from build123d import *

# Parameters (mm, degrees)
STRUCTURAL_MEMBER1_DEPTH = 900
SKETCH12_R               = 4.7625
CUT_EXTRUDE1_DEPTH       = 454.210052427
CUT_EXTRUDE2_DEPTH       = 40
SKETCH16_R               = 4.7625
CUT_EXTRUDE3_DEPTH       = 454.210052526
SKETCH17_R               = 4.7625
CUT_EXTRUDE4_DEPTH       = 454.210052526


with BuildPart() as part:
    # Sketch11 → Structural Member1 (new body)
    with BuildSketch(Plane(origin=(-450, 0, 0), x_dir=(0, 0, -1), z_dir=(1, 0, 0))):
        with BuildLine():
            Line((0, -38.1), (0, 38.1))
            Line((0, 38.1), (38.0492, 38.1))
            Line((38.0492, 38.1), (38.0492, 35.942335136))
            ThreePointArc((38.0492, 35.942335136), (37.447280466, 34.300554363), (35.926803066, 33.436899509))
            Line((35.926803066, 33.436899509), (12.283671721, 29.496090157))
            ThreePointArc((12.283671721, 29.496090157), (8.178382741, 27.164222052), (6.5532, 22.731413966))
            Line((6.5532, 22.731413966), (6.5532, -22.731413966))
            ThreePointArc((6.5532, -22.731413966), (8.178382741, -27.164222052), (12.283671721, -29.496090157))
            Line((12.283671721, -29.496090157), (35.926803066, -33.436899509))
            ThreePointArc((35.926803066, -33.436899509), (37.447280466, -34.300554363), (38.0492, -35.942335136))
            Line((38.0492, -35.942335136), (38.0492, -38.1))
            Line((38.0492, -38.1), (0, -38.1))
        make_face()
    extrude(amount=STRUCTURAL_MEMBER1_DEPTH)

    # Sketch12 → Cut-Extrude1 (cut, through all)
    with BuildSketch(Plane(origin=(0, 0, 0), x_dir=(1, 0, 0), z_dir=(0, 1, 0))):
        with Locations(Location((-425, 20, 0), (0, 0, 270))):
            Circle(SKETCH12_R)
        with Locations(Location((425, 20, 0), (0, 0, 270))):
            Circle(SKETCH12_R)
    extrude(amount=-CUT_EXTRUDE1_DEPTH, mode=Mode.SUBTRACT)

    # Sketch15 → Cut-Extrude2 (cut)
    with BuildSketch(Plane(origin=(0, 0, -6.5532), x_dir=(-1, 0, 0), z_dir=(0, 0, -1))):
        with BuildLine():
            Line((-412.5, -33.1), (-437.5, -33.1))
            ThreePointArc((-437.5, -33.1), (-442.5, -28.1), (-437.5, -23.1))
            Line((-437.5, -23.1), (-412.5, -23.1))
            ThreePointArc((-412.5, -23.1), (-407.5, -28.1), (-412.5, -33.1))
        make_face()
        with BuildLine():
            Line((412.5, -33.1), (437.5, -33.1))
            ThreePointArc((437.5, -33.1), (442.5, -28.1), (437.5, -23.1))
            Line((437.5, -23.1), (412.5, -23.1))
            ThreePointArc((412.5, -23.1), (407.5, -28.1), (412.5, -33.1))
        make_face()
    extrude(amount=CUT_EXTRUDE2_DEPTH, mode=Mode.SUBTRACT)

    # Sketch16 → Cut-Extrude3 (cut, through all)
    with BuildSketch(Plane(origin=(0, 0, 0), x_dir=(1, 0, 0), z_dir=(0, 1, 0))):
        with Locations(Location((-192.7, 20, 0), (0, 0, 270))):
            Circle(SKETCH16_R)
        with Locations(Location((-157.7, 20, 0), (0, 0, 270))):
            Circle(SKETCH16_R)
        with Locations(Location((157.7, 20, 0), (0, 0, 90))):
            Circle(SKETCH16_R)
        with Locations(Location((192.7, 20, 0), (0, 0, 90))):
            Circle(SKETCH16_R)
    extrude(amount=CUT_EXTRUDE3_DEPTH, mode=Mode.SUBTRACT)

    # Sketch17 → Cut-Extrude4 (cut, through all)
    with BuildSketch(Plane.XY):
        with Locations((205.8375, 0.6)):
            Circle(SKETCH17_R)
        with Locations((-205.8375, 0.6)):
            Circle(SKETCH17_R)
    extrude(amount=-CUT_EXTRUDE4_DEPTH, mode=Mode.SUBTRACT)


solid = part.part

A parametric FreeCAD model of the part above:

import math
import FreeCAD as App
import Part
import Sketcher
from FreeCAD import Vector
Q = App.Units.Quantity

doc = App.newDocument("Part")
params = doc.addObject("Spreadsheet::Sheet", "Params")
for row, (alias, value) in enumerate([
    ("sketch1_radius", "0.1 in"),
    ("sketch1_radius2", "0.1 in"),
    ("sketch1_width", "3 in"),
    ("sketch1_radius3", "0.27 in"),
    ("sketch1_radius4", "0.27 in"),
    ("pad1_length", "900 mm"),
    ("sketch2_diameter", "0.375 in"),
    ("pocket2_length", "40 mm"),
    ("sketch4_diameter", "0.375 in"),
    ("sketch5_diameter", "0.375 in"),
], start=1):
    params.set(f"A{row}", alias)
    params.set(f"B{row}", "=" + value)
    params.setAlias(f"B{row}", alias)

body = doc.addObject("PartDesign::Body", "Body")

sketch1 = body.newObject("Sketcher::SketchObject", "Sketch")
sketch1.AttachmentSupport = (doc.getObject("YZ_Plane"), [""])
sketch1.MapMode = "FlatFace"
sketch1.AttachmentOffset = App.Placement(Vector(0, 0, -450), App.Rotation())
sketch1.addGeometry(Part.LineSegment(Vector(38.1, 0, 0), Vector(-38.1, 0, 0)), False)
sketch1.addGeometry(Part.LineSegment(Vector(-38.1, 0, 0), Vector(-38.1, -38.0492, 0)), False)
sketch1.addGeometry(Part.LineSegment(Vector(-38.1, -38.0492, 0), Vector(-35.942335, -38.0492, 0)), False)
sketch1.addGeometry(Part.ArcOfCircle(Part.Circle(Vector(-35.942335, -35.5092, 0), Vector(0, 0, 1), 2.54), math.radians(-90), math.radians(-9.463)), False)
sketch1.addGeometry(Part.LineSegment(Vector(-33.4369, -35.926803, 0), Vector(-29.49609, -12.283672, 0)), False)
sketch1.addGeometry(Part.ArcOfCircle(Part.Circle(Vector(-22.731414, -13.4112, 0), Vector(0, 0, 1), 6.858), math.radians(90), math.radians(170.537)), False)
sketch1.addGeometry(Part.LineSegment(Vector(-22.731414, -6.5532, 0), Vector(22.731414, -6.5532, 0)), False)
sketch1.addGeometry(Part.ArcOfCircle(Part.Circle(Vector(22.731414, -13.4112, 0), Vector(0, 0, 1), 6.858), math.radians(9.463), math.radians(90)), False)
sketch1.addGeometry(Part.LineSegment(Vector(29.49609, -12.283672, 0), Vector(33.4369, -35.926803, 0)), False)
sketch1.addGeometry(Part.ArcOfCircle(Part.Circle(Vector(35.942335, -35.5092, 0), Vector(0, 0, 1), 2.54), math.radians(-170.537), math.radians(-90)), False)
sketch1.addGeometry(Part.LineSegment(Vector(35.942335, -38.0492, 0), Vector(38.1, -38.0492, 0)), False)
sketch1.addGeometry(Part.LineSegment(Vector(38.1, -38.0492, 0), Vector(38.1, 0, 0)), False)
sketch1.addConstraint(Sketcher.Constraint("Coincident", 0, 2, 1, 1))
sketch1.addConstraint(Sketcher.Constraint("Coincident", 1, 2, 2, 1))
sketch1.addConstraint(Sketcher.Constraint("Coincident", 2, 2, 3, 1))
sketch1.addConstraint(Sketcher.Constraint("Coincident", 3, 2, 4, 1))
sketch1.addConstraint(Sketcher.Constraint("Coincident", 4, 2, 5, 2))
sketch1.addConstraint(Sketcher.Constraint("Coincident", 5, 1, 6, 1))
sketch1.addConstraint(Sketcher.Constraint("Coincident", 6, 2, 7, 2))
sketch1.addConstraint(Sketcher.Constraint("Coincident", 7, 1, 8, 1))
sketch1.addConstraint(Sketcher.Constraint("Coincident", 8, 2, 9, 1))
sketch1.addConstraint(Sketcher.Constraint("Coincident", 9, 2, 10, 1))
sketch1.addConstraint(Sketcher.Constraint("Coincident", 10, 2, 11, 1))
sketch1.addConstraint(Sketcher.Constraint("Coincident", 11, 2, 0, 1))
sketch1.addConstraint(Sketcher.Constraint("Horizontal", 0))
sketch1.addConstraint(Sketcher.Constraint("Vertical", 1))
sketch1.addConstraint(Sketcher.Constraint("Horizontal", 2))
sketch1.addConstraint(Sketcher.Constraint("Horizontal", 6))
sketch1.addConstraint(Sketcher.Constraint("Horizontal", 10))
sketch1.addConstraint(Sketcher.Constraint("Vertical", 11))
sketch1.addConstraint(Sketcher.Constraint("PointOnObject", 0, 2, -1))
sketch1.addConstraint(Sketcher.Constraint("Radius", 3, Q("0.1 in")))
sketch1.addConstraint(Sketcher.Constraint("Radius", 9, Q("0.1 in")))
sketch1.addConstraint(Sketcher.Constraint("DistanceX", 0, 2, 0, 1, Q("3 in")))
sketch1.addConstraint(Sketcher.Constraint("Radius", 5, Q("0.27 in")))
sketch1.addConstraint(Sketcher.Constraint("Radius", 7, Q("0.27 in")))
sketch1.addConstraint(Sketcher.Constraint("DistanceX", 0, 2, -1, 1, Q("1.5 in")))
sketch1.addConstraint(Sketcher.Constraint("DistanceY", 1, 2, 9, 3, Q("0.1 in")))
sketch1.addConstraint(Sketcher.Constraint("DistanceY", 1, 2, 1, 1, Q("1.498 in")))
sketch1.addConstraint(Sketcher.Constraint("DistanceY", 3, 3, 5, 3, Q("0.87 in")))
sketch1.addConstraint(Sketcher.Constraint("DistanceX", 3, 2, -1, 1, Q("33.4369 mm")))
sketch1.addConstraint(Sketcher.Constraint("DistanceX", -1, 1, 8, 2, Q("33.4369 mm")))
sketch1.addConstraint(Sketcher.Constraint("DistanceX", 2, 1, 2, 2, Q("2.157665 mm")))
sketch1.addConstraint(Sketcher.Constraint("DistanceX", 6, 1, 6, 2, Q("45.462828 mm")))
sketch1.addConstraint(Sketcher.Constraint("DistanceX", 10, 1, 10, 2, Q("2.157665 mm")))
sketch1.addConstraint(Sketcher.Constraint("DistanceX", 4, 2, -1, 1, Q("29.49609 mm")))
sketch1.addConstraint(Sketcher.Constraint("DistanceY", 4, 2, -1, 1, Q("12.283672 mm")))
sketch1.addConstraint(Sketcher.Constraint("DistanceX", -1, 1, 7, 1, Q("29.49609 mm")))
sketch1.addConstraint(Sketcher.Constraint("DistanceY", 7, 1, -1, 1, Q("12.283672 mm")))
sketch1.addConstraint(Sketcher.Constraint("DistanceX", 3, 3, 5, 3, Q("13.210921 mm")))
sketch1.addConstraint(Sketcher.Constraint("DistanceX", 7, 3, 9, 3, Q("13.210921 mm")))
sketch1.addConstraint(Sketcher.Constraint("DistanceX", 3, 3, 5, 1, Q("13.210921 mm")))
sketch1.setExpression("Constraints[19]", "Params.sketch1_radius")
sketch1.setExpression("Constraints[20]", "Params.sketch1_radius2")
sketch1.setExpression("Constraints[21]", "Params.sketch1_width")
sketch1.setExpression("Constraints[22]", "Params.sketch1_radius3")
sketch1.setExpression("Constraints[23]", "Params.sketch1_radius4")
pad1 = body.newObject("PartDesign::Pad", "Pad")
pad1.Profile = sketch1
pad1.setExpression("Length", "Params.pad1_length")

sketch2 = body.newObject("Sketcher::SketchObject", "Sketch001")
sketch2.AttachmentSupport = (doc.getObject("XZ_Plane"), [""])
sketch2.MapMode = "FlatFace"
sketch2.addGeometry(Part.Circle(Vector(-425, -20, 0), Vector(0, 0, 1), 4.8), False)
sketch2.addGeometry(Part.Circle(Vector(425, -20, 0), Vector(0, 0, 1), 4.8), False)
sketch2.addConstraint(Sketcher.Constraint("Equal", 0, 1))
sketch2.addConstraint(Sketcher.Constraint("Symmetric", 0, 3, 1, 3, -2))
sketch2.addConstraint(Sketcher.Constraint("Diameter", 0, Q("0.375 in")))
sketch2.addConstraint(Sketcher.Constraint("DistanceX", 0, 3, -1, 1, Q("425 mm")))
sketch2.addConstraint(Sketcher.Constraint("DistanceY", 0, 3, -1, 1, Q("20 mm")))
sketch2.setExpression("Constraints[2]", "Params.sketch2_diameter")
pocket1 = body.newObject("PartDesign::Pocket", "Pocket")
pocket1.Profile = sketch2
pocket1.Type = "ThroughAll"
pocket1.Reversed = True

sketch3 = body.newObject("Sketcher::SketchObject", "Sketch002")
sketch3.AttachmentSupport = (doc.getObject("XY_Plane"), [""])
sketch3.MapMode = "FlatFace"
sketch3.AttachmentOffset = App.Placement(Vector(0, 0, -0.258 * 25.4), App.Rotation())
sketch3.addGeometry(Part.LineSegment(Vector(438, -33, 0), Vector(412, -33, 0)), False)
sketch3.addGeometry(Part.ArcOfCircle(Part.Circle(Vector(412, -28, 0), Vector(0, 0, 1), 5), math.radians(90), math.radians(270)), False)
sketch3.addGeometry(Part.LineSegment(Vector(412, -23, 0), Vector(438, -23, 0)), False)
sketch3.addGeometry(Part.ArcOfCircle(Part.Circle(Vector(438, -28, 0), Vector(0, 0, 1), 5), math.radians(-90), math.radians(90)), False)
sketch3.addGeometry(Part.LineSegment(Vector(-412, -33, 0), Vector(-438, -33, 0)), False)
sketch3.addGeometry(Part.ArcOfCircle(Part.Circle(Vector(-438, -28, 0), Vector(0, 0, 1), 5), math.radians(90), math.radians(270)), False)
sketch3.addGeometry(Part.LineSegment(Vector(-438, -23, 0), Vector(-412, -23, 0)), False)
sketch3.addGeometry(Part.ArcOfCircle(Part.Circle(Vector(-412, -28, 0), Vector(0, 0, 1), 5), math.radians(-90), math.radians(90)), False)
sketch3.addConstraint(Sketcher.Constraint("Tangent", 0, 2, 1, 2))
sketch3.addConstraint(Sketcher.Constraint("Tangent", 1, 1, 2, 1))
sketch3.addConstraint(Sketcher.Constraint("Tangent", 2, 2, 3, 2))
sketch3.addConstraint(Sketcher.Constraint("Tangent", 3, 1, 0, 1))
sketch3.addConstraint(Sketcher.Constraint("Tangent", 4, 2, 5, 2))
sketch3.addConstraint(Sketcher.Constraint("Tangent", 5, 1, 6, 1))
sketch3.addConstraint(Sketcher.Constraint("Tangent", 6, 2, 7, 2))
sketch3.addConstraint(Sketcher.Constraint("Tangent", 7, 1, 4, 1))
sketch3.addConstraint(Sketcher.Constraint("Horizontal", 0))
sketch3.addConstraint(Sketcher.Constraint("Horizontal", 2))
sketch3.addConstraint(Sketcher.Constraint("Horizontal", 4))
sketch3.addConstraint(Sketcher.Constraint("Horizontal", 6))
sketch3.addConstraint(Sketcher.Constraint("Equal", 3, 5))
sketch3.addConstraint(Sketcher.Constraint("Symmetric", 3, 3, 5, 3, -2))
sketch3.addConstraint(Sketcher.Constraint("Equal", 2, 4))
sketch3.addConstraint(Sketcher.Constraint("Radius", 1, Q("5 mm")))
sketch3.addConstraint(Sketcher.Constraint("DistanceX", 0, 2, 0, 1, Q("25 mm")))
sketch3.addConstraint(Sketcher.Constraint("DistanceX", -1, 1, 1, 3, Q("412.5 mm")))
sketch3.addConstraint(Sketcher.Constraint("DistanceY", 1, 3, -1, 1, Q("28.1 mm")))
pocket2 = body.newObject("PartDesign::Pocket", "Pocket001")
pocket2.Profile = sketch3
pocket2.setExpression("Length", "Params.pocket2_length")

sketch4 = body.newObject("Sketcher::SketchObject", "Sketch003")
sketch4.AttachmentSupport = (doc.getObject("XZ_Plane"), [""])
sketch4.MapMode = "FlatFace"
sketch4.addGeometry(Part.Circle(Vector(-192.7, -20, 0), Vector(0, 0, 1), 4.8), False)
sketch4.addGeometry(Part.Circle(Vector(-157.7, -20, 0), Vector(0, 0, 1), 4.8), False)
sketch4.addGeometry(Part.Circle(Vector(157.7, -20, 0), Vector(0, 0, 1), 4.8), False)
sketch4.addGeometry(Part.Circle(Vector(192.7, -20, 0), Vector(0, 0, 1), 4.8), False)
sketch4.addConstraint(Sketcher.Constraint("Equal", 0, 1))
sketch4.addConstraint(Sketcher.Constraint("Equal", 1, 2))
sketch4.addConstraint(Sketcher.Constraint("Equal", 2, 3))
sketch4.addConstraint(Sketcher.Constraint("Symmetric", 1, 3, 2, 3, -2))
sketch4.addConstraint(Sketcher.Constraint("Symmetric", 0, 3, 3, 3, -2))
sketch4.addConstraint(Sketcher.Constraint("Horizontal", 0, 3, 1, 3))
sketch4.addConstraint(Sketcher.Constraint("Diameter", 0, Q("0.375 in")))
sketch4.addConstraint(Sketcher.Constraint("DistanceX", 0, 3, -1, 1, Q("192.7 mm")))
sketch4.addConstraint(Sketcher.Constraint("DistanceY", 0, 3, -1, 1, Q("20 mm")))
sketch4.addConstraint(Sketcher.Constraint("DistanceX", 1, 3, -1, 1, Q("157.7 mm")))
sketch4.setExpression("Constraints[6]", "Params.sketch4_diameter")
pocket3 = body.newObject("PartDesign::Pocket", "Pocket002")
pocket3.Profile = sketch4
pocket3.Type = "ThroughAll"

sketch5 = body.newObject("Sketcher::SketchObject", "Sketch004")
sketch5.AttachmentSupport = (doc.getObject("XY_Plane"), [""])
sketch5.MapMode = "FlatFace"
sketch5.addGeometry(Part.Circle(Vector(205.8, 0.6, 0), Vector(0, 0, 1), 4.8), False)
sketch5.addGeometry(Part.Circle(Vector(-205.8, 0.6, 0), Vector(0, 0, 1), 4.8), False)
sketch5.addConstraint(Sketcher.Constraint("Equal", 0, 1))
sketch5.addConstraint(Sketcher.Constraint("Symmetric", 0, 3, 1, 3, -2))
sketch5.addConstraint(Sketcher.Constraint("Diameter", 0, Q("0.375 in")))
sketch5.addConstraint(Sketcher.Constraint("DistanceX", -1, 1, 0, 3, Q("205.8375 mm")))
sketch5.addConstraint(Sketcher.Constraint("DistanceY", -1, 1, 0, 3, Q("0.6 mm")))
sketch5.setExpression("Constraints[2]", "Params.sketch5_diameter")
pocket4 = body.newObject("PartDesign::Pocket", "Pocket003")
pocket4.Profile = sketch5
pocket4.Type = "ThroughAll"

doc.recompute()
